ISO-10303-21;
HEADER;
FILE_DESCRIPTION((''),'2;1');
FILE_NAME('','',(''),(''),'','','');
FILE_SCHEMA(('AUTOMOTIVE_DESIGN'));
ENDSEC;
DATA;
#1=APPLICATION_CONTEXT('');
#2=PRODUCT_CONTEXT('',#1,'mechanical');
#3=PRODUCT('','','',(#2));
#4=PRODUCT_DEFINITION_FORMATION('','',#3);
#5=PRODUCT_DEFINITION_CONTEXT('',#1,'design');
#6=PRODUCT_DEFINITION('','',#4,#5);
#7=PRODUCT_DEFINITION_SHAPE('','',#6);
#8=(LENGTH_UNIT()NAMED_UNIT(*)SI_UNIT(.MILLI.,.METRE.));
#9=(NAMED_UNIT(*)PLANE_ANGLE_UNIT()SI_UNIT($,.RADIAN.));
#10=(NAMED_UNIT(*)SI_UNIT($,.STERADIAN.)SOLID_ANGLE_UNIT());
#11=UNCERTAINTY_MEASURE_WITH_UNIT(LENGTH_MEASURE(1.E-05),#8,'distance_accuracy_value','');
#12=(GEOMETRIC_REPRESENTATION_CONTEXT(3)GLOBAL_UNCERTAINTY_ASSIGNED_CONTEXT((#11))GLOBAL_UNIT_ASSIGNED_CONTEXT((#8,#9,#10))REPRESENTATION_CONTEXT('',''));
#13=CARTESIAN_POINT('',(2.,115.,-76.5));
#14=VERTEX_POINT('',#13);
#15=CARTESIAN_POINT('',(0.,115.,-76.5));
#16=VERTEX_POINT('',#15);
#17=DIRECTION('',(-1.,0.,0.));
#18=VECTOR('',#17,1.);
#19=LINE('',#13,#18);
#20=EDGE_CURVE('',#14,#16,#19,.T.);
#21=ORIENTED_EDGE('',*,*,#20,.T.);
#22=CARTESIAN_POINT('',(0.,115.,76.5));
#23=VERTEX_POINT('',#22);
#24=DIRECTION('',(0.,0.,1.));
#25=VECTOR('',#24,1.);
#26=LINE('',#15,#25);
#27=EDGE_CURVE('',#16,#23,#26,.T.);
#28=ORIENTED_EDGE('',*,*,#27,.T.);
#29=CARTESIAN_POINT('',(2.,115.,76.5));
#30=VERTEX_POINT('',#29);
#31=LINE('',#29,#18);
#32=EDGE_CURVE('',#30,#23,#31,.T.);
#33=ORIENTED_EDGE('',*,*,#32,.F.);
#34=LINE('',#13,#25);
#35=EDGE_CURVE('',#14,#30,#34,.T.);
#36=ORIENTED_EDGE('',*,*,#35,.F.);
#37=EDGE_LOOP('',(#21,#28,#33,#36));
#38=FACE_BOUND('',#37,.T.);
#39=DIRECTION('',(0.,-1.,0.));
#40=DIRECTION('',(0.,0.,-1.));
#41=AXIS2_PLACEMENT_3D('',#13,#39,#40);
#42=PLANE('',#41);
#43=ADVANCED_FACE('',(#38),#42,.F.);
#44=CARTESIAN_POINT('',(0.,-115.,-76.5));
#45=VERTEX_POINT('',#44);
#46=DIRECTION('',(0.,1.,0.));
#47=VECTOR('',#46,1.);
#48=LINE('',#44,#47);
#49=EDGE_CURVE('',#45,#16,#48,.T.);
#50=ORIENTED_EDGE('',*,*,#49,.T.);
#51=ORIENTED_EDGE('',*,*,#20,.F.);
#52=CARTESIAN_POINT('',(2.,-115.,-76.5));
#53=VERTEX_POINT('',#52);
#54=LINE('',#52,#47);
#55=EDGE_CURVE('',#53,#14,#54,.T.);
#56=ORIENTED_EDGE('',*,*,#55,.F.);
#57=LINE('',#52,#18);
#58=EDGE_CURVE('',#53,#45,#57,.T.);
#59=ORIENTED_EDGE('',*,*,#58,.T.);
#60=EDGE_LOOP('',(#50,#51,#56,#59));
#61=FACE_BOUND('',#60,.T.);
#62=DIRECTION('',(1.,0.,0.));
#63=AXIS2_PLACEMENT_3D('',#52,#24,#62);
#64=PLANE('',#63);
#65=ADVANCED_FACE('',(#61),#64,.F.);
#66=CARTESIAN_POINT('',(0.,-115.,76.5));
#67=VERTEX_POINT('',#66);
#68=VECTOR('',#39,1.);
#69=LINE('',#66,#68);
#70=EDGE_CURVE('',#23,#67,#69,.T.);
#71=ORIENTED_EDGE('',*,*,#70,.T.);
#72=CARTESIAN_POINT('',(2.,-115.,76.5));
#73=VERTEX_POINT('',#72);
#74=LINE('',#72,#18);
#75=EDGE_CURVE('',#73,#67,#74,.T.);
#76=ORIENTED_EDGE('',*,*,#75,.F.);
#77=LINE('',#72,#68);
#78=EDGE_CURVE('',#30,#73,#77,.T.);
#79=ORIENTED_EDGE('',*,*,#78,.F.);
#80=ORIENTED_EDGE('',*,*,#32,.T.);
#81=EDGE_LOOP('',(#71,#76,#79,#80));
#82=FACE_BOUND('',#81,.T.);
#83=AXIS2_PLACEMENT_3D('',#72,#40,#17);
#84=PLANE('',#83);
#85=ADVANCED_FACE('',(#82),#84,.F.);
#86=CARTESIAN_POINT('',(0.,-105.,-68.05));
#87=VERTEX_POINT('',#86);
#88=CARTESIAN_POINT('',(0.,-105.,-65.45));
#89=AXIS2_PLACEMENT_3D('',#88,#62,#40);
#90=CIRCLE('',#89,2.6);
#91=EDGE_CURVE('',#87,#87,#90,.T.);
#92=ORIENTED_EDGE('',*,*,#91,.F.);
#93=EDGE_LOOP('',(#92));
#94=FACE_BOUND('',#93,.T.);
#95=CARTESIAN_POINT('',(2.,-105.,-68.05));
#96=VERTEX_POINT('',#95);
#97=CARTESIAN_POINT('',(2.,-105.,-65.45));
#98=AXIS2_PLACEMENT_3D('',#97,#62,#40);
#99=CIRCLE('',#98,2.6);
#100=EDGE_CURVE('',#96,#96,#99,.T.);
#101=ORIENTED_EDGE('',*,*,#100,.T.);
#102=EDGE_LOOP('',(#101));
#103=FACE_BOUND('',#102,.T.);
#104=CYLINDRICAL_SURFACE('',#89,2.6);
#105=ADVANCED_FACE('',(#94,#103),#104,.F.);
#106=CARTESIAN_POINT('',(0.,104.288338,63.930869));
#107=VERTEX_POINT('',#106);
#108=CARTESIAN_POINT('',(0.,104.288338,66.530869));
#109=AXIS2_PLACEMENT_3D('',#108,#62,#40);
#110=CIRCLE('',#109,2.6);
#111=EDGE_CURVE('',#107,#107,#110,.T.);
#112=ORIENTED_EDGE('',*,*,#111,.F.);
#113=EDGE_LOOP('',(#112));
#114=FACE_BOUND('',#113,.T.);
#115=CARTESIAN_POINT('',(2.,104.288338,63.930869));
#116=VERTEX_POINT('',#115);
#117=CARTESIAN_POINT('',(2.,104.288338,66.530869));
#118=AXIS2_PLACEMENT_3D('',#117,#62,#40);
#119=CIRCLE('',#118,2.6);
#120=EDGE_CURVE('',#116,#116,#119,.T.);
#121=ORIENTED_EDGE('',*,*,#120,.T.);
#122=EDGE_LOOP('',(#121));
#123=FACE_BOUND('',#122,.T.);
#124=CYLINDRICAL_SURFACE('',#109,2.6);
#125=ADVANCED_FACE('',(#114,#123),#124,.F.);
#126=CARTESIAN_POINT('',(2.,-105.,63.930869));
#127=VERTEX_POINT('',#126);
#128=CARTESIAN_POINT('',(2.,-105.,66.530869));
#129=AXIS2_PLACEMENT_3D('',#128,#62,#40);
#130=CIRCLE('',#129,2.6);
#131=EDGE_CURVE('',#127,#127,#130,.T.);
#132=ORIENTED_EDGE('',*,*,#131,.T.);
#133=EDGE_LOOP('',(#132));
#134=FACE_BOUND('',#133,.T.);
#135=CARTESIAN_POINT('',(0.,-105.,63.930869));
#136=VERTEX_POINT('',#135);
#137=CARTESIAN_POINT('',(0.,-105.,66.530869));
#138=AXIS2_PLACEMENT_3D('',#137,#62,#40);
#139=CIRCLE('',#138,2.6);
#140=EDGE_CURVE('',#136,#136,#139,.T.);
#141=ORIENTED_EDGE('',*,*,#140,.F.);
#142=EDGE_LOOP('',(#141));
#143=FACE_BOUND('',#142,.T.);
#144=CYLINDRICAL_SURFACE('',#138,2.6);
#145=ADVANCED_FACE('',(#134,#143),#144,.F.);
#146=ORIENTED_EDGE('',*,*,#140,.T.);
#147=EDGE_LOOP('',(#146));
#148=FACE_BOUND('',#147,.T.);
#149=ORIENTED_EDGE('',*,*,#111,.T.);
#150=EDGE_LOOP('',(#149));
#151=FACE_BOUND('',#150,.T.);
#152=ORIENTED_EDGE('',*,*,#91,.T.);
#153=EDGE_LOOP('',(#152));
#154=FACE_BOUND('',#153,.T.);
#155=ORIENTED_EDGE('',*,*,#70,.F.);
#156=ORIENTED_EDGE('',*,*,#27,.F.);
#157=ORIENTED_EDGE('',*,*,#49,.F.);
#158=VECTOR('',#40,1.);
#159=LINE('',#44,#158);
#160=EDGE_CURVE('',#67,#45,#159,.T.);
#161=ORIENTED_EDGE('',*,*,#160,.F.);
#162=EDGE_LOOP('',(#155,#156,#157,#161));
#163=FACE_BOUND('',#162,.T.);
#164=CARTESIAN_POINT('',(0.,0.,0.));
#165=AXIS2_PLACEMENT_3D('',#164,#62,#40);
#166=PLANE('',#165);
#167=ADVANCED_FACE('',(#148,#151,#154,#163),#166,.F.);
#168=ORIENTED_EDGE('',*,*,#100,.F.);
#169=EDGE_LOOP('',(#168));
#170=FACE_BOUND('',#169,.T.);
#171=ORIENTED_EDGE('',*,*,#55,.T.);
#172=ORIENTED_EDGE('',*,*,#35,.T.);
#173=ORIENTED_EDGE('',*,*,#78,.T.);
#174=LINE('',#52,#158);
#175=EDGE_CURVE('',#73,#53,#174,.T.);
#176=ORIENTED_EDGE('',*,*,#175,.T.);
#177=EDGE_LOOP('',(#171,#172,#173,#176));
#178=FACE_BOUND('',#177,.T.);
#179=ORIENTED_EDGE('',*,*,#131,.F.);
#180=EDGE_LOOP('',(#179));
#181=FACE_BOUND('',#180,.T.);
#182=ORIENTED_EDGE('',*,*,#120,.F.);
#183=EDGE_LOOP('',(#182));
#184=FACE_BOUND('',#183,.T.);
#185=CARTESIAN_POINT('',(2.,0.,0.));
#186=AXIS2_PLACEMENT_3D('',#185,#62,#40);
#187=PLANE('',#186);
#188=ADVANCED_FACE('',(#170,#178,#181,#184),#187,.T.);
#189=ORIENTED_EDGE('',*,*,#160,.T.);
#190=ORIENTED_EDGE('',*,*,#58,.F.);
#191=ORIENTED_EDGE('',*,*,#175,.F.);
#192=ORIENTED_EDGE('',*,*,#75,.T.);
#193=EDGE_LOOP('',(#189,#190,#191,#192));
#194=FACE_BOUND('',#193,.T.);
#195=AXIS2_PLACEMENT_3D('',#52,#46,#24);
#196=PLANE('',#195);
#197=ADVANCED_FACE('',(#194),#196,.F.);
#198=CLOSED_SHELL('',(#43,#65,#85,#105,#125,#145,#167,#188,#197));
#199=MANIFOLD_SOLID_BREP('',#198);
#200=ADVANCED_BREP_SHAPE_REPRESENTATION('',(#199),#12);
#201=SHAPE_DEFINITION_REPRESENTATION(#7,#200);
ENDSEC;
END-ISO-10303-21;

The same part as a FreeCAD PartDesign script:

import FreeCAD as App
import Part
import Sketcher
from FreeCAD import Vector
Q = App.Units.Quantity


def add_polygon(sketch, points):
    """Adds a closed chain of lines whose ends are joined by coincident constraints."""
    first, n = sketch.GeometryCount, len(points)
    for a, b in zip(points, points[1:] + points[:1]):
        sketch.addGeometry(Part.LineSegment(App.Vector(*a, 0), App.Vector(*b, 0)), False)
    for i in range(n):
        sketch.addConstraint(Sketcher.Constraint("Coincident", first + i, 2, first + (i + 1) % n, 1))

doc = App.newDocument("Part")
body = doc.addObject("PartDesign::Body", "Body")

sketch1 = body.newObject("Sketcher::SketchObject", "Sketch")
sketch1.AttachmentSupport = (doc.getObject("YZ_Plane"), [""])
sketch1.MapMode = "FlatFace"
add_polygon(sketch1, [(115, 76.5), (-115, 76.5), (-115, -76.5), (115, -76.5)])
sketch1.addConstraint([
    Sketcher.Constraint("Horizontal", 0),
    Sketcher.Constraint("Vertical", 1),
    Sketcher.Constraint("Horizontal", 2),
    Sketcher.Constraint("Vertical", 3),
    Sketcher.Constraint("Symmetric", 0, 2, 2, 2, -1, 1),
    Sketcher.Constraint("DistanceX", 0, 2, 0, 1, Q("230 mm")),
    Sketcher.Constraint("DistanceY", 1, 2, 1, 1, Q("153 mm")),
])
pad1 = body.newObject("PartDesign::Pad", "Pad")
pad1.Profile = sketch1
pad1.Length = 2

sketch2 = body.newObject("Sketcher::SketchObject", "Sketch001")
sketch2.AttachmentSupport = (doc.getObject("YZ_Plane"), [""])
sketch2.MapMode = "FlatFace"
sketch2.AttachmentOffset = App.Placement(Vector(0, 0, 2), App.Rotation())
sketch2.addGeometry([
    Part.Circle(Vector(-105, -65.45, 0), Vector(0, 0, 1), 2.6),
    Part.Circle(Vector(-105, 66.530869, 0), Vector(0, 0, 1), 2.6),
    Part.Circle(Vector(104.288338, 66.530869, 0), Vector(0, 0, 1), 2.6),
], False)
sketch2.addConstraint([
    Sketcher.Constraint("Equal", 0, 1),
    Sketcher.Constraint("Equal", 1, 2),
    Sketcher.Constraint("Horizontal", 1, 3, 2, 3),
    Sketcher.Constraint("Vertical", 0, 3, 1, 3),
    Sketcher.Constraint("Diameter", 0, Q("5.2 mm")),
    Sketcher.Constraint("DistanceX", 0, 3, -1, 1, Q("105 mm")),
    Sketcher.Constraint("DistanceY", 0, 3, -1, 1, Q("65.45 mm")),
    Sketcher.Constraint("DistanceY", -1, 1, 1, 3, Q("66.530869 mm")),
    Sketcher.Constraint("DistanceX", -1, 1, 2, 3, Q("104.288338 mm")),
])
pocket1 = body.newObject("PartDesign::Pocket", "Pocket")
pocket1.Profile = sketch2
pocket1.Length = 2

doc.recompute()
